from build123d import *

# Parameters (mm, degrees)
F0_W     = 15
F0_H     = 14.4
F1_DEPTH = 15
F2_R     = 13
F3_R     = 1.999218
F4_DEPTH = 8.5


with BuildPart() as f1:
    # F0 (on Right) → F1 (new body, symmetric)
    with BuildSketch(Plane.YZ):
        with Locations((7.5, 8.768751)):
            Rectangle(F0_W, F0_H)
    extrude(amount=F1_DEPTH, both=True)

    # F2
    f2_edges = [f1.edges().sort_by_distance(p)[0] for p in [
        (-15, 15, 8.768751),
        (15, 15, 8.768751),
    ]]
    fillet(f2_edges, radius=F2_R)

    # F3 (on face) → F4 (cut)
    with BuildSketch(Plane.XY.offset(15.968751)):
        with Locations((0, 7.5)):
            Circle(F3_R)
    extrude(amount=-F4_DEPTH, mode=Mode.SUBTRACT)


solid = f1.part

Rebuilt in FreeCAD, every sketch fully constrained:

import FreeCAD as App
import Part
import Sketcher
Q = App.Units.Quantity


def edges_at(feature, points):
    """Names of the edges that pass closest to the given points."""
    edges = feature.Shape.Edges
    near = lambda p: min(range(len(edges)), key=lambda i: edges[i].distToShape(Part.Vertex(*p))[0])
    return sorted({f"Edge{near(p) + 1}" for p in points})

doc = App.newDocument("Part")
body = doc.addObject("PartDesign::Body", "Body")

# Sketch on YZ plane
sketch1 = body.newObject("Sketcher::SketchObject", "Sketch")
sketch1.AttachmentSupport = (doc.getObject("YZ_Plane"), [""])
sketch1.MapMode = "FlatFace"
sketch1.addGeometry([
    Part.LineSegment(App.Vector(0, 15.968751, 0), App.Vector(0, 1.568751, 0)),
    Part.LineSegment(App.Vector(0, 1.568751, 0), App.Vector(15, 1.568751, 0)),
    Part.LineSegment(App.Vector(15, 1.568751, 0), App.Vector(15, 15.968751, 0)),
    Part.LineSegment(App.Vector(15, 15.968751, 0), App.Vector(0, 15.968751, 0)),
], False)
sketch1.addConstraint([
    Sketcher.Constraint("Coincident", 0, 2, 1, 1),
    Sketcher.Constraint("Coincident", 1, 2, 2, 1),
    Sketcher.Constraint("Coincident", 2, 2, 3, 1),
    Sketcher.Constraint("Coincident", 3, 2, 0, 1),
    Sketcher.Constraint("Vertical", 0),
    Sketcher.Constraint("Horizontal", 1),
    Sketcher.Constraint("Vertical", 2),
    Sketcher.Constraint("Horizontal", 3),
    Sketcher.Constraint("PointOnObject", 0, 2, -2),
    Sketcher.Constraint("DistanceX", 1, 1, 1, 2, Q("15 mm")),
    Sketcher.Constraint("DistanceY", 0, 2, 0, 1, Q("14.4 mm")),
    Sketcher.Constraint("DistanceY", -1, 1, 0, 2, Q("1.568751 mm")),
])
pad1 = body.newObject("PartDesign::Pad", "Pad")
pad1.Profile = sketch1
pad1.Length = 30
pad1.Midplane = True
doc.recompute()

fillet = body.newObject("PartDesign::Fillet", "Fillet")
fillet.Base = (pad1, edges_at(pad1, [(-15, 15, 8.769), (15, 15, 8.769)]))
fillet.Radius = 13

# Sketch on XY plane
sketch2 = body.newObject("Sketcher::SketchObject", "Sketch001")
sketch2.AttachmentSupport = (doc.getObject("XY_Plane"), [""])
sketch2.MapMode = "FlatFace"
sketch2.AttachmentOffset = App.Placement(App.Vector(0, 0, 15.968751), App.Rotation())
sketch2.addGeometry(Part.Circle(App.Vector(0, 7.5, 0), App.Vector(0, 0, 1), 1.999218), False)
sketch2.addConstraint([
    Sketcher.Constraint("PointOnObject", 0, 3, -2),
    Sketcher.Constraint("DistanceY", -1, 1, 0, 3, Q("7.5 mm")),
    Sketcher.Constraint("Diameter", 0, Q("3.998436 mm")),
])
pocket1 = body.newObject("PartDesign::Pocket", "Pocket")
pocket1.Profile = sketch2
pocket1.Length = 8.5

doc.recompute()
